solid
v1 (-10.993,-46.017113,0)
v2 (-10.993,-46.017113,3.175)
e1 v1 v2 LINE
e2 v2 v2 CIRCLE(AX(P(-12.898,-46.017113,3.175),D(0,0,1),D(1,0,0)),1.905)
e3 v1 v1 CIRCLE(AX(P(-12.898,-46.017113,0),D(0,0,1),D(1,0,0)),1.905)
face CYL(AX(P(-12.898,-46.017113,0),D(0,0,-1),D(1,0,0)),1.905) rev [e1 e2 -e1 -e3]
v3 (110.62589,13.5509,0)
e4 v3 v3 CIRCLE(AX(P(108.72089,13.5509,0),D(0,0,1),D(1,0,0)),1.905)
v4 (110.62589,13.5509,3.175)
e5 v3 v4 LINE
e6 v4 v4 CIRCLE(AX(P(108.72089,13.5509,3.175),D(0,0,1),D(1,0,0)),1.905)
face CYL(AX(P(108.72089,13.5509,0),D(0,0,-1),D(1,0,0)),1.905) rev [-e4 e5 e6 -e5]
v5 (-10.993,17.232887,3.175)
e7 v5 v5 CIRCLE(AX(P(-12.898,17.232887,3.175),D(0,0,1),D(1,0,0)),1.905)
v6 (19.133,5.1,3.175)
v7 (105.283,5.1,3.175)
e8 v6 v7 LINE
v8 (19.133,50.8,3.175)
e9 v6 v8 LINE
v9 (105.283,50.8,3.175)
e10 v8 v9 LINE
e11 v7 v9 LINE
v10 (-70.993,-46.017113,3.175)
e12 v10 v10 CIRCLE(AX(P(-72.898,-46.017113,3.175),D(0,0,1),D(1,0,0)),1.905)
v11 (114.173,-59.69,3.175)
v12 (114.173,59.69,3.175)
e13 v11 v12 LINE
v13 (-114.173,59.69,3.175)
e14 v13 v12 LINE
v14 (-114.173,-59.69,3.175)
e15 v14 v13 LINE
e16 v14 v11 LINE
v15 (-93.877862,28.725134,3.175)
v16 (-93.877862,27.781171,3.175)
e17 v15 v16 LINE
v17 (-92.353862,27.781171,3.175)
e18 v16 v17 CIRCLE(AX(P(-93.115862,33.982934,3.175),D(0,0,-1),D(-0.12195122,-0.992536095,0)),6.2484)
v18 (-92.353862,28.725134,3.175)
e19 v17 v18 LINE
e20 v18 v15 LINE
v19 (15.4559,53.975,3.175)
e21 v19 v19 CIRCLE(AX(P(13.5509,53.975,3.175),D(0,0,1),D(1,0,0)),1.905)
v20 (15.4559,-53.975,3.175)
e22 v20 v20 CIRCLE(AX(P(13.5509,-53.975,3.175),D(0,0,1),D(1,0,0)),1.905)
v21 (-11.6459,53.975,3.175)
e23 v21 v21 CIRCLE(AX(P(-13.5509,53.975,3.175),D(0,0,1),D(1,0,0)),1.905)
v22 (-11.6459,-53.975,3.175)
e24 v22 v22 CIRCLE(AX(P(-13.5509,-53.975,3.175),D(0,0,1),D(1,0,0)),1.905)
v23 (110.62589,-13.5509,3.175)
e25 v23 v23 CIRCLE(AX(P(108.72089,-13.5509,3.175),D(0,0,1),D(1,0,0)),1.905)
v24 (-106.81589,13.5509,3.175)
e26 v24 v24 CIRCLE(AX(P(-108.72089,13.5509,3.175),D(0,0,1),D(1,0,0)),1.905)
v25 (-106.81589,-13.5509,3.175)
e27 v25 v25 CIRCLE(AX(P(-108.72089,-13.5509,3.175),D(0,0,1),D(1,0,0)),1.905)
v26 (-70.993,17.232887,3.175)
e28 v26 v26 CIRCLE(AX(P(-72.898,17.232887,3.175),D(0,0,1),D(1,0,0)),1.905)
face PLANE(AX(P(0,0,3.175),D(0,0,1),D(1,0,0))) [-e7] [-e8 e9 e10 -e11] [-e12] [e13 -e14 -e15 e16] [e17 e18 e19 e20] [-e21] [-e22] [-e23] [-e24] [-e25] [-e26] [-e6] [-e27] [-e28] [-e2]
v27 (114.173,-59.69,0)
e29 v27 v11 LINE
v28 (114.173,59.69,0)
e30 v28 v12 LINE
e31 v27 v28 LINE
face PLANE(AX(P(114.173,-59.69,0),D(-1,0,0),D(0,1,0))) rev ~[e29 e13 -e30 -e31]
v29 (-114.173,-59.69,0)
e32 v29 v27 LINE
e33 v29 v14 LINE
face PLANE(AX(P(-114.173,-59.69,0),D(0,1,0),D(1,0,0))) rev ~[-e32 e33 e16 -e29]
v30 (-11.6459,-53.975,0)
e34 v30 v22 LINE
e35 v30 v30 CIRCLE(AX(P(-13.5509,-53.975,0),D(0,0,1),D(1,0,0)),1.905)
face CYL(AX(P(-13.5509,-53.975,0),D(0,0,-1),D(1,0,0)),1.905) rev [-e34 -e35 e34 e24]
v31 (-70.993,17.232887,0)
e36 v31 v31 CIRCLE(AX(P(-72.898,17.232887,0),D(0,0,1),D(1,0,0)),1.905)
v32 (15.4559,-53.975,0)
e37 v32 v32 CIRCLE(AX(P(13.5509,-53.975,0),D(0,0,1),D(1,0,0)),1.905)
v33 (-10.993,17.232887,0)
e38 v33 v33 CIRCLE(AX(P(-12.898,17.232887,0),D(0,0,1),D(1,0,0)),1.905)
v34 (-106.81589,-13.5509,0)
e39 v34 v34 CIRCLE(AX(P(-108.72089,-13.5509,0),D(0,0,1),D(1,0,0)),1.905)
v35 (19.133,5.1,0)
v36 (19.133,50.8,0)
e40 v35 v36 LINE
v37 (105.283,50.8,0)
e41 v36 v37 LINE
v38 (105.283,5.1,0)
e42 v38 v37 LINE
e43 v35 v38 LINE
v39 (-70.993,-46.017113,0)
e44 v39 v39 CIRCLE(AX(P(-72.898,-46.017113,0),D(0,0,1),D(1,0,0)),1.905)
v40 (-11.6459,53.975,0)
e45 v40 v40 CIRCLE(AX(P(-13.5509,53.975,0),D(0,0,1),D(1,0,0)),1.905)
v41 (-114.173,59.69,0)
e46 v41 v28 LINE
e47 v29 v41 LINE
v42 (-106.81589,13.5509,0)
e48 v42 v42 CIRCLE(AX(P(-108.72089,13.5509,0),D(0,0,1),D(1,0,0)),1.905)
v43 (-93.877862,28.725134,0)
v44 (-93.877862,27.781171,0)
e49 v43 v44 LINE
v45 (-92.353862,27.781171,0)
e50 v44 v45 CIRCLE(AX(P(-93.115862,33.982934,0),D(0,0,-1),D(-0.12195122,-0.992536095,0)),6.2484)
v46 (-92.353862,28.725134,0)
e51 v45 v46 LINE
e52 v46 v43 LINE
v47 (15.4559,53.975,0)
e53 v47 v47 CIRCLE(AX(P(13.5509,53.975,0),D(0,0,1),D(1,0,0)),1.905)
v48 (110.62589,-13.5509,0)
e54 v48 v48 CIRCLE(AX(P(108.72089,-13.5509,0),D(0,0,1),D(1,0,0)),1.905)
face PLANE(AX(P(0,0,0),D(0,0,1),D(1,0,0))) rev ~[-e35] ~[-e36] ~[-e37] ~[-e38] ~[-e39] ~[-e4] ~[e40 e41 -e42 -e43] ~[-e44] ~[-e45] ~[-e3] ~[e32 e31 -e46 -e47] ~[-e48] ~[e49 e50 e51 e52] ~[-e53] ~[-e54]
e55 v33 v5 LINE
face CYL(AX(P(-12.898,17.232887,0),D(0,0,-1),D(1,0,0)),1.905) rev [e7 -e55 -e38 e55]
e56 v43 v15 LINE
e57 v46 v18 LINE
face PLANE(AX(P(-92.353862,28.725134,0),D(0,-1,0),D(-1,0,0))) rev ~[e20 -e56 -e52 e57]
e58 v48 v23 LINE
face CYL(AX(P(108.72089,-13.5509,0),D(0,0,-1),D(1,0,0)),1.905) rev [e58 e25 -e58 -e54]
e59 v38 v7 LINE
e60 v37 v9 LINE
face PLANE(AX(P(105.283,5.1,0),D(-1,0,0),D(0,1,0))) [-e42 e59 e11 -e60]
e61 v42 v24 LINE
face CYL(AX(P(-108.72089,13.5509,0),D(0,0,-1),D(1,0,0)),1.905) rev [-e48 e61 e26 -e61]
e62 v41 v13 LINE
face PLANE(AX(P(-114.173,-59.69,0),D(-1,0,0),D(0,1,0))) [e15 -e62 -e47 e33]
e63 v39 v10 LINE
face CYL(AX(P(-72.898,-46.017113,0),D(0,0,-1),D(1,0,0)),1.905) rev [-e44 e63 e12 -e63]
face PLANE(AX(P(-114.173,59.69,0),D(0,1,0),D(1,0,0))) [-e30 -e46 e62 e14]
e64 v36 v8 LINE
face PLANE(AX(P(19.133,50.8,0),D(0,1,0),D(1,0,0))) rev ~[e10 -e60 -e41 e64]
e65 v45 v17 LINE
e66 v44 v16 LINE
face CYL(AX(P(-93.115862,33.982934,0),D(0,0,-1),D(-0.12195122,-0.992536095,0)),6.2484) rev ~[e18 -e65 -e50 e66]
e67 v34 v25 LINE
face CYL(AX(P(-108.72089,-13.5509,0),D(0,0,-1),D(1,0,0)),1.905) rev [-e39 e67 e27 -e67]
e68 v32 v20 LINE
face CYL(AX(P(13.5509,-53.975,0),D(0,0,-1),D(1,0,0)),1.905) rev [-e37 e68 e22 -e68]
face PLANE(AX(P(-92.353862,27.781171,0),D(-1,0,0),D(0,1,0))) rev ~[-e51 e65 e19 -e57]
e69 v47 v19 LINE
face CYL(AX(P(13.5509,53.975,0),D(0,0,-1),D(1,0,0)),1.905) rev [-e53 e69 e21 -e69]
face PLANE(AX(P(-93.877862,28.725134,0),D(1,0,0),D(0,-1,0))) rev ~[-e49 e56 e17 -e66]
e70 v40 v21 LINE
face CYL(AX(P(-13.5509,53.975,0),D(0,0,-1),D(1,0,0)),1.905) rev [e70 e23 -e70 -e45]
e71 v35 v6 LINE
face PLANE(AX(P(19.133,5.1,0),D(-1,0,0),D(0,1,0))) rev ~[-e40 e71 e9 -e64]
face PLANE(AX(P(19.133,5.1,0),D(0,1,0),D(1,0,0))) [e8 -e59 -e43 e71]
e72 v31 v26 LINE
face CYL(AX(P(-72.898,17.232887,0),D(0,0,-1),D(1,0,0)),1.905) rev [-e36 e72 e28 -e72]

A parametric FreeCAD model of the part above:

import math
import FreeCAD as App
import Part
import Sketcher

V = App.Vector
Q = App.Units.Quantity


def add_polygon(sketch, points):
    """Adds a closed chain of lines whose ends are joined by coincident constraints."""
    first, n = sketch.GeometryCount, len(points)
    for a, b in zip(points, points[1:] + points[:1]):
        sketch.addGeometry(Part.LineSegment(App.Vector(*a, 0), App.Vector(*b, 0)), False)
    for i in range(n):
        sketch.addConstraint(Sketcher.Constraint("Coincident", first + i, 2, first + (i + 1) % n, 1))

doc = App.newDocument("Part")
body = doc.addObject("PartDesign::Body", "Body")

sketch1 = body.newObject("Sketcher::SketchObject", "Sketch")
sketch1.AttachmentSupport = (doc.getObject("XY_Plane"), [""])
sketch1.MapMode = "FlatFace"
add_polygon(sketch1, [(-114.2, 59.7), (-114.2, -59.7), (114.2, -59.7), (114.2, 59.7)])
sketch1.addGeometry(Part.Circle(V(-72.9, -46, 0), V(0, 0, 1), 1.9), False)
sketch1.addGeometry(Part.Circle(V(-13.6, -54, 0), V(0, 0, 1), 1.9), False)
sketch1.addGeometry(Part.Circle(V(-12.9, -46, 0), V(0, 0, 1), 1.9), False)
sketch1.addGeometry(Part.Circle(V(-108.7, -13.6, 0), V(0, 0, 1), 1.9), False)
sketch1.addGeometry(Part.Circle(V(13.6, -54, 0), V(0, 0, 1), 1.9), False)
sketch1.addGeometry(Part.Circle(V(108.7, -13.6, 0), V(0, 0, 1), 1.9), False)
sketch1.addGeometry(Part.Circle(V(-108.7, 13.6, 0), V(0, 0, 1), 1.9), False)
sketch1.addGeometry(Part.Circle(V(-72.9, 17.2, 0), V(0, 0, 1), 1.9), False)
sketch1.addGeometry(Part.Circle(V(-12.9, 17.2, 0), V(0, 0, 1), 1.9), False)
sketch1.addGeometry(Part.ArcOfCircle(Part.Circle(V(-93.1, 34, 0), V(0, 0, 1), 6.2), math.radians(-83), math.radians(263)), False)
sketch1.addGeometry(Part.LineSegment(V(-92.4, 27.8, 0), V(-92.4, 28.7, 0)), False)
sketch1.addGeometry(Part.LineSegment(V(-92.4, 28.7, 0), V(-93.9, 28.7, 0)), False)
sketch1.addGeometry(Part.LineSegment(V(-93.9, 28.7, 0), V(-93.9, 27.8, 0)), False)
sketch1.addGeometry(Part.Circle(V(-13.6, 54, 0), V(0, 0, 1), 1.9), False)
sketch1.addGeometry(Part.Circle(V(108.7, 13.6, 0), V(0, 0, 1), 1.9), False)
sketch1.addGeometry(Part.Circle(V(13.6, 54, 0), V(0, 0, 1), 1.9), False)
add_polygon(sketch1, [(105.3, 5.1), (19.1, 5.1), (19.1, 50.8), (105.3, 50.8)])
sketch1.addConstraint(Sketcher.Constraint("Coincident", 13, 1, 14, 1))
sketch1.addConstraint(Sketcher.Constraint("Coincident", 14, 2, 15, 1))
sketch1.addConstraint(Sketcher.Constraint("Coincident", 15, 2, 16, 1))
sketch1.addConstraint(Sketcher.Constraint("Coincident", 16, 2, 13, 2))
sketch1.addConstraint(Sketcher.Constraint("Vertical", 0))
sketch1.addConstraint(Sketcher.Constraint("Horizontal", 1))
sketch1.addConstraint(Sketcher.Constraint("Vertical", 2))
sketch1.addConstraint(Sketcher.Constraint("Horizontal", 3))
sketch1.addConstraint(Sketcher.Constraint("Vertical", 14))
sketch1.addConstraint(Sketcher.Constraint("Horizontal", 15))
sketch1.addConstraint(Sketcher.Constraint("Vertical", 16))
sketch1.addConstraint(Sketcher.Constraint("Horizontal", 20))
sketch1.addConstraint(Sketcher.Constraint("Vertical", 21))
sketch1.addConstraint(Sketcher.Constraint("Horizontal", 22))
sketch1.addConstraint(Sketcher.Constraint("Vertical", 23))
sketch1.addConstraint(Sketcher.Constraint("Equal", 4, 5))
sketch1.addConstraint(Sketcher.Constraint("Equal", 5, 6))
sketch1.addConstraint(Sketcher.Constraint("Equal", 6, 7))
sketch1.addConstraint(Sketcher.Constraint("Equal", 7, 8))
sketch1.addConstraint(Sketcher.Constraint("Equal", 8, 9))
sketch1.addConstraint(Sketcher.Constraint("Equal", 9, 10))
sketch1.addConstraint(Sketcher.Constraint("Equal", 10, 11))
sketch1.addConstraint(Sketcher.Constraint("Equal", 11, 12))
sketch1.addConstraint(Sketcher.Constraint("Equal", 12, 17))
sketch1.addConstraint(Sketcher.Constraint("Equal", 17, 18))
sketch1.addConstraint(Sketcher.Constraint("Equal", 18, 19))
sketch1.addConstraint(Sketcher.Constraint("Symmetric", 9, 3, 10, 3, -1, 1))
sketch1.addConstraint(Sketcher.Constraint("Symmetric", 8, 3, 17, 3, -1, 1))
sketch1.addConstraint(Sketcher.Constraint("Symmetric", 7, 3, 18, 3, -1, 1))
sketch1.addConstraint(Sketcher.Constraint("Symmetric", 5, 3, 19, 3, -1, 1))
sketch1.addConstraint(Sketcher.Constraint("Symmetric", 0, 2, 2, 2, -1, 1))
sketch1.addConstraint(Sketcher.Constraint("Symmetric", 5, 3, 8, 3, -2))
sketch1.addConstraint(Sketcher.Constraint("Symmetric", 7, 3, 9, 3, -2))
sketch1.addConstraint(Sketcher.Constraint("Horizontal", 4, 3, 6, 3))
sketch1.addConstraint(Sketcher.Constraint("Horizontal", 11, 3, 12, 3))
sketch1.addConstraint(Sketcher.Constraint("Horizontal", 13, 1, 16, 2))
sketch1.addConstraint(Sketcher.Constraint("Vertical", 4, 3, 11, 3))
sketch1.addConstraint(Sketcher.Constraint("Vertical", 6, 3, 12, 3))
sketch1.addConstraint(Sketcher.Constraint("Diameter", 4, Q("0.15 in")))
sketch1.addConstraint(Sketcher.Constraint("DistanceY", 0, 2, 0, 1, Q("4.7 in")))
sketch1.addConstraint(Sketcher.Constraint("DistanceY", -1, 1, 21, 2, Q("2 in")))
sketch1.addConstraint(Sketcher.Constraint("Radius", 13, Q("0.246 in")))
sketch1.addConstraint(Sketcher.Constraint("DistanceX", 1, 1, 1, 2, Q("8.99 in")))
sketch1.addConstraint(Sketcher.Constraint("DistanceX", 15, 2, 15, 1, Q("0.06 in")))
sketch1.addConstraint(Sketcher.Constraint("DistanceX", 4, 3, -1, 1, Q("2.87 in")))
sketch1.addConstraint(Sketcher.Constraint("DistanceX", 22, 2, 2, 2, Q("0.35 in")))
sketch1.addConstraint(Sketcher.Constraint("DistanceY", 5, 3, -1, 1, Q("2.125 in")))
sketch1.addConstraint(Sketcher.Constraint("DistanceX", 5, 3, 8, 3, Q("1.067 in")))
sketch1.addConstraint(Sketcher.Constraint("DistanceY", 7, 3, 10, 3, Q("1.067 in")))
sketch1.addConstraint(Sketcher.Constraint("DistanceY", 14, 2, 13, 3, Q("0.207 in")))
sketch1.addConstraint(Sketcher.Constraint("DistanceX", 20, 2, 20, 1, Q("86.15 mm")))
sketch1.addConstraint(Sketcher.Constraint("DistanceY", 21, 1, 21, 2, Q("45.7 mm")))
sketch1.addConstraint(Sketcher.Constraint("DistanceX", 7, 3, 9, 3, Q("8.5607 in")))
sketch1.addConstraint(Sketcher.Constraint("DistanceX", 6, 3, -1, 1, Q("12.898 mm")))
sketch1.addConstraint(Sketcher.Constraint("DistanceY", 4, 3, 11, 3, Q("63.25 mm")))
sketch1.addConstraint(Sketcher.Constraint("DistanceX", 13, 3, -1, 1, Q("93.115862 mm")))
sketch1.addConstraint(Sketcher.Constraint("DistanceY", -1, 1, 13, 1, Q("27.781171 mm")))
sketch1.addConstraint(Sketcher.Constraint("DistanceY", 4, 3, -1, 1, Q("46.017113 mm")))
pad1 = body.newObject("PartDesign::Pad", "Pad")
pad1.Profile = sketch1
pad1.Length = Q("0.125 in")

doc.recompute()
